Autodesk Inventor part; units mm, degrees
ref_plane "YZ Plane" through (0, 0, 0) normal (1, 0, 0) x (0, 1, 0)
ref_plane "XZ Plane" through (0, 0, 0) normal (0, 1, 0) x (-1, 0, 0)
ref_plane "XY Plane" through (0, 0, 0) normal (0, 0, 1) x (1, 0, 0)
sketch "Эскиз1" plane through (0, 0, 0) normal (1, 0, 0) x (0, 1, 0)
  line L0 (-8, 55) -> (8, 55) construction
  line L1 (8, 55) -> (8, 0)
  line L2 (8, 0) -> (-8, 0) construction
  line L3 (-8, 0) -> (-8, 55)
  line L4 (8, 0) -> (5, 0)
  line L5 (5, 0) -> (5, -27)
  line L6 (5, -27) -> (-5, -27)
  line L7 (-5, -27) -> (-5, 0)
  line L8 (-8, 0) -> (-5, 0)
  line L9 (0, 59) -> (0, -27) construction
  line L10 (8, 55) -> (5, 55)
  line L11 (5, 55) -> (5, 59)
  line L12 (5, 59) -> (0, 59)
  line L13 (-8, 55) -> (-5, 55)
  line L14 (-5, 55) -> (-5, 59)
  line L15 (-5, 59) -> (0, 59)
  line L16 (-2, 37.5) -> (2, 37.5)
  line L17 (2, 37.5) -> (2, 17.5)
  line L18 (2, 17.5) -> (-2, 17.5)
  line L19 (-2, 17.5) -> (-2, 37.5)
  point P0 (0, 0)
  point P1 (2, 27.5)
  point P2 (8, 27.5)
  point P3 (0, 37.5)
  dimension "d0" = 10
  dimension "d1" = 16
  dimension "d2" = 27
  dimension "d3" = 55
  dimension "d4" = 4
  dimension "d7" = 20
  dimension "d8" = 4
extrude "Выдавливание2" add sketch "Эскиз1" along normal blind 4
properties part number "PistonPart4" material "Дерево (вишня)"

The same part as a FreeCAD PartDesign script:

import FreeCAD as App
import Part
import Sketcher
from FreeCAD import Vector
Q = App.Units.Quantity

doc = App.newDocument("Part")
body = doc.addObject("PartDesign::Body", "Body")

# Sketch on YZ plane
sketch1 = body.newObject("Sketcher::SketchObject", "Sketch")
sketch1.AttachmentSupport = (doc.getObject("YZ_Plane"), [""])
sketch1.MapMode = "FlatFace"
sketch1.addGeometry(Part.LineSegment(Vector(8, 0, 0), Vector(8, 55, 0)), False)
sketch1.addGeometry(Part.LineSegment(Vector(8, 55, 0), Vector(5, 55, 0)), False)
sketch1.addGeometry(Part.LineSegment(Vector(5, 55, 0), Vector(5, 59, 0)), False)
sketch1.addGeometry(Part.LineSegment(Vector(5, 59, 0), Vector(-5, 59, 0)), False)
sketch1.addGeometry(Part.LineSegment(Vector(-5, 59, 0), Vector(-5, 55, 0)), False)
sketch1.addGeometry(Part.LineSegment(Vector(-5, 55, 0), Vector(-8, 55, 0)), False)
sketch1.addGeometry(Part.LineSegment(Vector(-8, 55, 0), Vector(-8, 0, 0)), False)
sketch1.addGeometry(Part.LineSegment(Vector(-8, 0, 0), Vector(-5, 0, 0)), False)
sketch1.addGeometry(Part.LineSegment(Vector(-5, 0, 0), Vector(-5, -27, 0)), False)
sketch1.addGeometry(Part.LineSegment(Vector(-5, -27, 0), Vector(5, -27, 0)), False)
sketch1.addGeometry(Part.LineSegment(Vector(5, -27, 0), Vector(5, 0, 0)), False)
sketch1.addGeometry(Part.LineSegment(Vector(5, 0, 0), Vector(8, 0, 0)), False)
sketch1.addGeometry(Part.LineSegment(Vector(-2, 17.5, 0), Vector(-2, 37.5, 0)), False)
sketch1.addGeometry(Part.LineSegment(Vector(-2, 37.5, 0), Vector(2, 37.5, 0)), False)
sketch1.addGeometry(Part.LineSegment(Vector(2, 37.5, 0), Vector(2, 17.5, 0)), False)
sketch1.addGeometry(Part.LineSegment(Vector(2, 17.5, 0), Vector(-2, 17.5, 0)), False)
sketch1.addConstraint(Sketcher.Constraint("Coincident", 0, 2, 1, 1))
sketch1.addConstraint(Sketcher.Constraint("Coincident", 1, 2, 2, 1))
sketch1.addConstraint(Sketcher.Constraint("Coincident", 2, 2, 3, 1))
sketch1.addConstraint(Sketcher.Constraint("Coincident", 3, 2, 4, 1))
sketch1.addConstraint(Sketcher.Constraint("Coincident", 4, 2, 5, 1))
sketch1.addConstraint(Sketcher.Constraint("Coincident", 5, 2, 6, 1))
sketch1.addConstraint(Sketcher.Constraint("Coincident", 6, 2, 7, 1))
sketch1.addConstraint(Sketcher.Constraint("Coincident", 7, 2, 8, 1))
sketch1.addConstraint(Sketcher.Constraint("Coincident", 8, 2, 9, 1))
sketch1.addConstraint(Sketcher.Constraint("Coincident", 9, 2, 10, 1))
sketch1.addConstraint(Sketcher.Constraint("Coincident", 10, 2, 11, 1))
sketch1.addConstraint(Sketcher.Constraint("Coincident", 11, 2, 0, 1))
sketch1.addConstraint(Sketcher.Constraint("Coincident", 12, 2, 13, 1))
sketch1.addConstraint(Sketcher.Constraint("Coincident", 13, 2, 14, 1))
sketch1.addConstraint(Sketcher.Constraint("Coincident", 14, 2, 15, 1))
sketch1.addConstraint(Sketcher.Constraint("Coincident", 15, 2, 12, 1))
sketch1.addConstraint(Sketcher.Constraint("Vertical", 0))
sketch1.addConstraint(Sketcher.Constraint("Horizontal", 1))
sketch1.addConstraint(Sketcher.Constraint("Vertical", 2))
sketch1.addConstraint(Sketcher.Constraint("Horizontal", 3))
sketch1.addConstraint(Sketcher.Constraint("Vertical", 4))
sketch1.addConstraint(Sketcher.Constraint("Horizontal", 5))
sketch1.addConstraint(Sketcher.Constraint("Vertical", 6))
sketch1.addConstraint(Sketcher.Constraint("Horizontal", 7))
sketch1.addConstraint(Sketcher.Constraint("Vertical", 8))
sketch1.addConstraint(Sketcher.Constraint("Horizontal", 9))
sketch1.addConstraint(Sketcher.Constraint("Vertical", 10))
sketch1.addConstraint(Sketcher.Constraint("Horizontal", 11))
sketch1.addConstraint(Sketcher.Constraint("Vertical", 12))
sketch1.addConstraint(Sketcher.Constraint("Horizontal", 13))
sketch1.addConstraint(Sketcher.Constraint("Vertical", 14))
sketch1.addConstraint(Sketcher.Constraint("Horizontal", 15))
sketch1.addConstraint(Sketcher.Constraint("Symmetric", 7, 2, 10, 2, -1, 1))
sketch1.addConstraint(Sketcher.Constraint("Symmetric", 1, 2, 4, 2, -2))
sketch1.addConstraint(Sketcher.Constraint("Symmetric", 6, 2, 11, 2, -2))
sketch1.addConstraint(Sketcher.Constraint("Vertical", 4, 2, 7, 2))
sketch1.addConstraint(Sketcher.Constraint("Equal", 15, 2))
sketch1.addConstraint(Sketcher.Constraint("DistanceX", 3, 2, 3, 1, Q("10 mm")))
sketch1.addConstraint(Sketcher.Constraint("DistanceX", 13, 1, 13, 2, Q("4 mm")))
sketch1.addConstraint(Sketcher.Constraint("DistanceY", 0, 1, 0, 2, Q("55 mm")))
sketch1.addConstraint(Sketcher.Constraint("DistanceY", 8, 2, 8, 1, Q("27 mm")))
sketch1.addConstraint(Sketcher.Constraint("DistanceY", 12, 1, 12, 2, Q("20 mm")))
sketch1.addConstraint(Sketcher.Constraint("DistanceX", 5, 2, 0, 2, Q("16 mm")))
sketch1.addConstraint(Sketcher.Constraint("DistanceX", 12, 2, 0, 2, Q("10 mm")))
sketch1.addConstraint(Sketcher.Constraint("DistanceY", -1, 1, 12, 2, Q("37.5 mm")))
pad1 = body.newObject("PartDesign::Pad", "Pad")
pad1.Profile = sketch1
pad1.Length = 4

doc.recompute()
